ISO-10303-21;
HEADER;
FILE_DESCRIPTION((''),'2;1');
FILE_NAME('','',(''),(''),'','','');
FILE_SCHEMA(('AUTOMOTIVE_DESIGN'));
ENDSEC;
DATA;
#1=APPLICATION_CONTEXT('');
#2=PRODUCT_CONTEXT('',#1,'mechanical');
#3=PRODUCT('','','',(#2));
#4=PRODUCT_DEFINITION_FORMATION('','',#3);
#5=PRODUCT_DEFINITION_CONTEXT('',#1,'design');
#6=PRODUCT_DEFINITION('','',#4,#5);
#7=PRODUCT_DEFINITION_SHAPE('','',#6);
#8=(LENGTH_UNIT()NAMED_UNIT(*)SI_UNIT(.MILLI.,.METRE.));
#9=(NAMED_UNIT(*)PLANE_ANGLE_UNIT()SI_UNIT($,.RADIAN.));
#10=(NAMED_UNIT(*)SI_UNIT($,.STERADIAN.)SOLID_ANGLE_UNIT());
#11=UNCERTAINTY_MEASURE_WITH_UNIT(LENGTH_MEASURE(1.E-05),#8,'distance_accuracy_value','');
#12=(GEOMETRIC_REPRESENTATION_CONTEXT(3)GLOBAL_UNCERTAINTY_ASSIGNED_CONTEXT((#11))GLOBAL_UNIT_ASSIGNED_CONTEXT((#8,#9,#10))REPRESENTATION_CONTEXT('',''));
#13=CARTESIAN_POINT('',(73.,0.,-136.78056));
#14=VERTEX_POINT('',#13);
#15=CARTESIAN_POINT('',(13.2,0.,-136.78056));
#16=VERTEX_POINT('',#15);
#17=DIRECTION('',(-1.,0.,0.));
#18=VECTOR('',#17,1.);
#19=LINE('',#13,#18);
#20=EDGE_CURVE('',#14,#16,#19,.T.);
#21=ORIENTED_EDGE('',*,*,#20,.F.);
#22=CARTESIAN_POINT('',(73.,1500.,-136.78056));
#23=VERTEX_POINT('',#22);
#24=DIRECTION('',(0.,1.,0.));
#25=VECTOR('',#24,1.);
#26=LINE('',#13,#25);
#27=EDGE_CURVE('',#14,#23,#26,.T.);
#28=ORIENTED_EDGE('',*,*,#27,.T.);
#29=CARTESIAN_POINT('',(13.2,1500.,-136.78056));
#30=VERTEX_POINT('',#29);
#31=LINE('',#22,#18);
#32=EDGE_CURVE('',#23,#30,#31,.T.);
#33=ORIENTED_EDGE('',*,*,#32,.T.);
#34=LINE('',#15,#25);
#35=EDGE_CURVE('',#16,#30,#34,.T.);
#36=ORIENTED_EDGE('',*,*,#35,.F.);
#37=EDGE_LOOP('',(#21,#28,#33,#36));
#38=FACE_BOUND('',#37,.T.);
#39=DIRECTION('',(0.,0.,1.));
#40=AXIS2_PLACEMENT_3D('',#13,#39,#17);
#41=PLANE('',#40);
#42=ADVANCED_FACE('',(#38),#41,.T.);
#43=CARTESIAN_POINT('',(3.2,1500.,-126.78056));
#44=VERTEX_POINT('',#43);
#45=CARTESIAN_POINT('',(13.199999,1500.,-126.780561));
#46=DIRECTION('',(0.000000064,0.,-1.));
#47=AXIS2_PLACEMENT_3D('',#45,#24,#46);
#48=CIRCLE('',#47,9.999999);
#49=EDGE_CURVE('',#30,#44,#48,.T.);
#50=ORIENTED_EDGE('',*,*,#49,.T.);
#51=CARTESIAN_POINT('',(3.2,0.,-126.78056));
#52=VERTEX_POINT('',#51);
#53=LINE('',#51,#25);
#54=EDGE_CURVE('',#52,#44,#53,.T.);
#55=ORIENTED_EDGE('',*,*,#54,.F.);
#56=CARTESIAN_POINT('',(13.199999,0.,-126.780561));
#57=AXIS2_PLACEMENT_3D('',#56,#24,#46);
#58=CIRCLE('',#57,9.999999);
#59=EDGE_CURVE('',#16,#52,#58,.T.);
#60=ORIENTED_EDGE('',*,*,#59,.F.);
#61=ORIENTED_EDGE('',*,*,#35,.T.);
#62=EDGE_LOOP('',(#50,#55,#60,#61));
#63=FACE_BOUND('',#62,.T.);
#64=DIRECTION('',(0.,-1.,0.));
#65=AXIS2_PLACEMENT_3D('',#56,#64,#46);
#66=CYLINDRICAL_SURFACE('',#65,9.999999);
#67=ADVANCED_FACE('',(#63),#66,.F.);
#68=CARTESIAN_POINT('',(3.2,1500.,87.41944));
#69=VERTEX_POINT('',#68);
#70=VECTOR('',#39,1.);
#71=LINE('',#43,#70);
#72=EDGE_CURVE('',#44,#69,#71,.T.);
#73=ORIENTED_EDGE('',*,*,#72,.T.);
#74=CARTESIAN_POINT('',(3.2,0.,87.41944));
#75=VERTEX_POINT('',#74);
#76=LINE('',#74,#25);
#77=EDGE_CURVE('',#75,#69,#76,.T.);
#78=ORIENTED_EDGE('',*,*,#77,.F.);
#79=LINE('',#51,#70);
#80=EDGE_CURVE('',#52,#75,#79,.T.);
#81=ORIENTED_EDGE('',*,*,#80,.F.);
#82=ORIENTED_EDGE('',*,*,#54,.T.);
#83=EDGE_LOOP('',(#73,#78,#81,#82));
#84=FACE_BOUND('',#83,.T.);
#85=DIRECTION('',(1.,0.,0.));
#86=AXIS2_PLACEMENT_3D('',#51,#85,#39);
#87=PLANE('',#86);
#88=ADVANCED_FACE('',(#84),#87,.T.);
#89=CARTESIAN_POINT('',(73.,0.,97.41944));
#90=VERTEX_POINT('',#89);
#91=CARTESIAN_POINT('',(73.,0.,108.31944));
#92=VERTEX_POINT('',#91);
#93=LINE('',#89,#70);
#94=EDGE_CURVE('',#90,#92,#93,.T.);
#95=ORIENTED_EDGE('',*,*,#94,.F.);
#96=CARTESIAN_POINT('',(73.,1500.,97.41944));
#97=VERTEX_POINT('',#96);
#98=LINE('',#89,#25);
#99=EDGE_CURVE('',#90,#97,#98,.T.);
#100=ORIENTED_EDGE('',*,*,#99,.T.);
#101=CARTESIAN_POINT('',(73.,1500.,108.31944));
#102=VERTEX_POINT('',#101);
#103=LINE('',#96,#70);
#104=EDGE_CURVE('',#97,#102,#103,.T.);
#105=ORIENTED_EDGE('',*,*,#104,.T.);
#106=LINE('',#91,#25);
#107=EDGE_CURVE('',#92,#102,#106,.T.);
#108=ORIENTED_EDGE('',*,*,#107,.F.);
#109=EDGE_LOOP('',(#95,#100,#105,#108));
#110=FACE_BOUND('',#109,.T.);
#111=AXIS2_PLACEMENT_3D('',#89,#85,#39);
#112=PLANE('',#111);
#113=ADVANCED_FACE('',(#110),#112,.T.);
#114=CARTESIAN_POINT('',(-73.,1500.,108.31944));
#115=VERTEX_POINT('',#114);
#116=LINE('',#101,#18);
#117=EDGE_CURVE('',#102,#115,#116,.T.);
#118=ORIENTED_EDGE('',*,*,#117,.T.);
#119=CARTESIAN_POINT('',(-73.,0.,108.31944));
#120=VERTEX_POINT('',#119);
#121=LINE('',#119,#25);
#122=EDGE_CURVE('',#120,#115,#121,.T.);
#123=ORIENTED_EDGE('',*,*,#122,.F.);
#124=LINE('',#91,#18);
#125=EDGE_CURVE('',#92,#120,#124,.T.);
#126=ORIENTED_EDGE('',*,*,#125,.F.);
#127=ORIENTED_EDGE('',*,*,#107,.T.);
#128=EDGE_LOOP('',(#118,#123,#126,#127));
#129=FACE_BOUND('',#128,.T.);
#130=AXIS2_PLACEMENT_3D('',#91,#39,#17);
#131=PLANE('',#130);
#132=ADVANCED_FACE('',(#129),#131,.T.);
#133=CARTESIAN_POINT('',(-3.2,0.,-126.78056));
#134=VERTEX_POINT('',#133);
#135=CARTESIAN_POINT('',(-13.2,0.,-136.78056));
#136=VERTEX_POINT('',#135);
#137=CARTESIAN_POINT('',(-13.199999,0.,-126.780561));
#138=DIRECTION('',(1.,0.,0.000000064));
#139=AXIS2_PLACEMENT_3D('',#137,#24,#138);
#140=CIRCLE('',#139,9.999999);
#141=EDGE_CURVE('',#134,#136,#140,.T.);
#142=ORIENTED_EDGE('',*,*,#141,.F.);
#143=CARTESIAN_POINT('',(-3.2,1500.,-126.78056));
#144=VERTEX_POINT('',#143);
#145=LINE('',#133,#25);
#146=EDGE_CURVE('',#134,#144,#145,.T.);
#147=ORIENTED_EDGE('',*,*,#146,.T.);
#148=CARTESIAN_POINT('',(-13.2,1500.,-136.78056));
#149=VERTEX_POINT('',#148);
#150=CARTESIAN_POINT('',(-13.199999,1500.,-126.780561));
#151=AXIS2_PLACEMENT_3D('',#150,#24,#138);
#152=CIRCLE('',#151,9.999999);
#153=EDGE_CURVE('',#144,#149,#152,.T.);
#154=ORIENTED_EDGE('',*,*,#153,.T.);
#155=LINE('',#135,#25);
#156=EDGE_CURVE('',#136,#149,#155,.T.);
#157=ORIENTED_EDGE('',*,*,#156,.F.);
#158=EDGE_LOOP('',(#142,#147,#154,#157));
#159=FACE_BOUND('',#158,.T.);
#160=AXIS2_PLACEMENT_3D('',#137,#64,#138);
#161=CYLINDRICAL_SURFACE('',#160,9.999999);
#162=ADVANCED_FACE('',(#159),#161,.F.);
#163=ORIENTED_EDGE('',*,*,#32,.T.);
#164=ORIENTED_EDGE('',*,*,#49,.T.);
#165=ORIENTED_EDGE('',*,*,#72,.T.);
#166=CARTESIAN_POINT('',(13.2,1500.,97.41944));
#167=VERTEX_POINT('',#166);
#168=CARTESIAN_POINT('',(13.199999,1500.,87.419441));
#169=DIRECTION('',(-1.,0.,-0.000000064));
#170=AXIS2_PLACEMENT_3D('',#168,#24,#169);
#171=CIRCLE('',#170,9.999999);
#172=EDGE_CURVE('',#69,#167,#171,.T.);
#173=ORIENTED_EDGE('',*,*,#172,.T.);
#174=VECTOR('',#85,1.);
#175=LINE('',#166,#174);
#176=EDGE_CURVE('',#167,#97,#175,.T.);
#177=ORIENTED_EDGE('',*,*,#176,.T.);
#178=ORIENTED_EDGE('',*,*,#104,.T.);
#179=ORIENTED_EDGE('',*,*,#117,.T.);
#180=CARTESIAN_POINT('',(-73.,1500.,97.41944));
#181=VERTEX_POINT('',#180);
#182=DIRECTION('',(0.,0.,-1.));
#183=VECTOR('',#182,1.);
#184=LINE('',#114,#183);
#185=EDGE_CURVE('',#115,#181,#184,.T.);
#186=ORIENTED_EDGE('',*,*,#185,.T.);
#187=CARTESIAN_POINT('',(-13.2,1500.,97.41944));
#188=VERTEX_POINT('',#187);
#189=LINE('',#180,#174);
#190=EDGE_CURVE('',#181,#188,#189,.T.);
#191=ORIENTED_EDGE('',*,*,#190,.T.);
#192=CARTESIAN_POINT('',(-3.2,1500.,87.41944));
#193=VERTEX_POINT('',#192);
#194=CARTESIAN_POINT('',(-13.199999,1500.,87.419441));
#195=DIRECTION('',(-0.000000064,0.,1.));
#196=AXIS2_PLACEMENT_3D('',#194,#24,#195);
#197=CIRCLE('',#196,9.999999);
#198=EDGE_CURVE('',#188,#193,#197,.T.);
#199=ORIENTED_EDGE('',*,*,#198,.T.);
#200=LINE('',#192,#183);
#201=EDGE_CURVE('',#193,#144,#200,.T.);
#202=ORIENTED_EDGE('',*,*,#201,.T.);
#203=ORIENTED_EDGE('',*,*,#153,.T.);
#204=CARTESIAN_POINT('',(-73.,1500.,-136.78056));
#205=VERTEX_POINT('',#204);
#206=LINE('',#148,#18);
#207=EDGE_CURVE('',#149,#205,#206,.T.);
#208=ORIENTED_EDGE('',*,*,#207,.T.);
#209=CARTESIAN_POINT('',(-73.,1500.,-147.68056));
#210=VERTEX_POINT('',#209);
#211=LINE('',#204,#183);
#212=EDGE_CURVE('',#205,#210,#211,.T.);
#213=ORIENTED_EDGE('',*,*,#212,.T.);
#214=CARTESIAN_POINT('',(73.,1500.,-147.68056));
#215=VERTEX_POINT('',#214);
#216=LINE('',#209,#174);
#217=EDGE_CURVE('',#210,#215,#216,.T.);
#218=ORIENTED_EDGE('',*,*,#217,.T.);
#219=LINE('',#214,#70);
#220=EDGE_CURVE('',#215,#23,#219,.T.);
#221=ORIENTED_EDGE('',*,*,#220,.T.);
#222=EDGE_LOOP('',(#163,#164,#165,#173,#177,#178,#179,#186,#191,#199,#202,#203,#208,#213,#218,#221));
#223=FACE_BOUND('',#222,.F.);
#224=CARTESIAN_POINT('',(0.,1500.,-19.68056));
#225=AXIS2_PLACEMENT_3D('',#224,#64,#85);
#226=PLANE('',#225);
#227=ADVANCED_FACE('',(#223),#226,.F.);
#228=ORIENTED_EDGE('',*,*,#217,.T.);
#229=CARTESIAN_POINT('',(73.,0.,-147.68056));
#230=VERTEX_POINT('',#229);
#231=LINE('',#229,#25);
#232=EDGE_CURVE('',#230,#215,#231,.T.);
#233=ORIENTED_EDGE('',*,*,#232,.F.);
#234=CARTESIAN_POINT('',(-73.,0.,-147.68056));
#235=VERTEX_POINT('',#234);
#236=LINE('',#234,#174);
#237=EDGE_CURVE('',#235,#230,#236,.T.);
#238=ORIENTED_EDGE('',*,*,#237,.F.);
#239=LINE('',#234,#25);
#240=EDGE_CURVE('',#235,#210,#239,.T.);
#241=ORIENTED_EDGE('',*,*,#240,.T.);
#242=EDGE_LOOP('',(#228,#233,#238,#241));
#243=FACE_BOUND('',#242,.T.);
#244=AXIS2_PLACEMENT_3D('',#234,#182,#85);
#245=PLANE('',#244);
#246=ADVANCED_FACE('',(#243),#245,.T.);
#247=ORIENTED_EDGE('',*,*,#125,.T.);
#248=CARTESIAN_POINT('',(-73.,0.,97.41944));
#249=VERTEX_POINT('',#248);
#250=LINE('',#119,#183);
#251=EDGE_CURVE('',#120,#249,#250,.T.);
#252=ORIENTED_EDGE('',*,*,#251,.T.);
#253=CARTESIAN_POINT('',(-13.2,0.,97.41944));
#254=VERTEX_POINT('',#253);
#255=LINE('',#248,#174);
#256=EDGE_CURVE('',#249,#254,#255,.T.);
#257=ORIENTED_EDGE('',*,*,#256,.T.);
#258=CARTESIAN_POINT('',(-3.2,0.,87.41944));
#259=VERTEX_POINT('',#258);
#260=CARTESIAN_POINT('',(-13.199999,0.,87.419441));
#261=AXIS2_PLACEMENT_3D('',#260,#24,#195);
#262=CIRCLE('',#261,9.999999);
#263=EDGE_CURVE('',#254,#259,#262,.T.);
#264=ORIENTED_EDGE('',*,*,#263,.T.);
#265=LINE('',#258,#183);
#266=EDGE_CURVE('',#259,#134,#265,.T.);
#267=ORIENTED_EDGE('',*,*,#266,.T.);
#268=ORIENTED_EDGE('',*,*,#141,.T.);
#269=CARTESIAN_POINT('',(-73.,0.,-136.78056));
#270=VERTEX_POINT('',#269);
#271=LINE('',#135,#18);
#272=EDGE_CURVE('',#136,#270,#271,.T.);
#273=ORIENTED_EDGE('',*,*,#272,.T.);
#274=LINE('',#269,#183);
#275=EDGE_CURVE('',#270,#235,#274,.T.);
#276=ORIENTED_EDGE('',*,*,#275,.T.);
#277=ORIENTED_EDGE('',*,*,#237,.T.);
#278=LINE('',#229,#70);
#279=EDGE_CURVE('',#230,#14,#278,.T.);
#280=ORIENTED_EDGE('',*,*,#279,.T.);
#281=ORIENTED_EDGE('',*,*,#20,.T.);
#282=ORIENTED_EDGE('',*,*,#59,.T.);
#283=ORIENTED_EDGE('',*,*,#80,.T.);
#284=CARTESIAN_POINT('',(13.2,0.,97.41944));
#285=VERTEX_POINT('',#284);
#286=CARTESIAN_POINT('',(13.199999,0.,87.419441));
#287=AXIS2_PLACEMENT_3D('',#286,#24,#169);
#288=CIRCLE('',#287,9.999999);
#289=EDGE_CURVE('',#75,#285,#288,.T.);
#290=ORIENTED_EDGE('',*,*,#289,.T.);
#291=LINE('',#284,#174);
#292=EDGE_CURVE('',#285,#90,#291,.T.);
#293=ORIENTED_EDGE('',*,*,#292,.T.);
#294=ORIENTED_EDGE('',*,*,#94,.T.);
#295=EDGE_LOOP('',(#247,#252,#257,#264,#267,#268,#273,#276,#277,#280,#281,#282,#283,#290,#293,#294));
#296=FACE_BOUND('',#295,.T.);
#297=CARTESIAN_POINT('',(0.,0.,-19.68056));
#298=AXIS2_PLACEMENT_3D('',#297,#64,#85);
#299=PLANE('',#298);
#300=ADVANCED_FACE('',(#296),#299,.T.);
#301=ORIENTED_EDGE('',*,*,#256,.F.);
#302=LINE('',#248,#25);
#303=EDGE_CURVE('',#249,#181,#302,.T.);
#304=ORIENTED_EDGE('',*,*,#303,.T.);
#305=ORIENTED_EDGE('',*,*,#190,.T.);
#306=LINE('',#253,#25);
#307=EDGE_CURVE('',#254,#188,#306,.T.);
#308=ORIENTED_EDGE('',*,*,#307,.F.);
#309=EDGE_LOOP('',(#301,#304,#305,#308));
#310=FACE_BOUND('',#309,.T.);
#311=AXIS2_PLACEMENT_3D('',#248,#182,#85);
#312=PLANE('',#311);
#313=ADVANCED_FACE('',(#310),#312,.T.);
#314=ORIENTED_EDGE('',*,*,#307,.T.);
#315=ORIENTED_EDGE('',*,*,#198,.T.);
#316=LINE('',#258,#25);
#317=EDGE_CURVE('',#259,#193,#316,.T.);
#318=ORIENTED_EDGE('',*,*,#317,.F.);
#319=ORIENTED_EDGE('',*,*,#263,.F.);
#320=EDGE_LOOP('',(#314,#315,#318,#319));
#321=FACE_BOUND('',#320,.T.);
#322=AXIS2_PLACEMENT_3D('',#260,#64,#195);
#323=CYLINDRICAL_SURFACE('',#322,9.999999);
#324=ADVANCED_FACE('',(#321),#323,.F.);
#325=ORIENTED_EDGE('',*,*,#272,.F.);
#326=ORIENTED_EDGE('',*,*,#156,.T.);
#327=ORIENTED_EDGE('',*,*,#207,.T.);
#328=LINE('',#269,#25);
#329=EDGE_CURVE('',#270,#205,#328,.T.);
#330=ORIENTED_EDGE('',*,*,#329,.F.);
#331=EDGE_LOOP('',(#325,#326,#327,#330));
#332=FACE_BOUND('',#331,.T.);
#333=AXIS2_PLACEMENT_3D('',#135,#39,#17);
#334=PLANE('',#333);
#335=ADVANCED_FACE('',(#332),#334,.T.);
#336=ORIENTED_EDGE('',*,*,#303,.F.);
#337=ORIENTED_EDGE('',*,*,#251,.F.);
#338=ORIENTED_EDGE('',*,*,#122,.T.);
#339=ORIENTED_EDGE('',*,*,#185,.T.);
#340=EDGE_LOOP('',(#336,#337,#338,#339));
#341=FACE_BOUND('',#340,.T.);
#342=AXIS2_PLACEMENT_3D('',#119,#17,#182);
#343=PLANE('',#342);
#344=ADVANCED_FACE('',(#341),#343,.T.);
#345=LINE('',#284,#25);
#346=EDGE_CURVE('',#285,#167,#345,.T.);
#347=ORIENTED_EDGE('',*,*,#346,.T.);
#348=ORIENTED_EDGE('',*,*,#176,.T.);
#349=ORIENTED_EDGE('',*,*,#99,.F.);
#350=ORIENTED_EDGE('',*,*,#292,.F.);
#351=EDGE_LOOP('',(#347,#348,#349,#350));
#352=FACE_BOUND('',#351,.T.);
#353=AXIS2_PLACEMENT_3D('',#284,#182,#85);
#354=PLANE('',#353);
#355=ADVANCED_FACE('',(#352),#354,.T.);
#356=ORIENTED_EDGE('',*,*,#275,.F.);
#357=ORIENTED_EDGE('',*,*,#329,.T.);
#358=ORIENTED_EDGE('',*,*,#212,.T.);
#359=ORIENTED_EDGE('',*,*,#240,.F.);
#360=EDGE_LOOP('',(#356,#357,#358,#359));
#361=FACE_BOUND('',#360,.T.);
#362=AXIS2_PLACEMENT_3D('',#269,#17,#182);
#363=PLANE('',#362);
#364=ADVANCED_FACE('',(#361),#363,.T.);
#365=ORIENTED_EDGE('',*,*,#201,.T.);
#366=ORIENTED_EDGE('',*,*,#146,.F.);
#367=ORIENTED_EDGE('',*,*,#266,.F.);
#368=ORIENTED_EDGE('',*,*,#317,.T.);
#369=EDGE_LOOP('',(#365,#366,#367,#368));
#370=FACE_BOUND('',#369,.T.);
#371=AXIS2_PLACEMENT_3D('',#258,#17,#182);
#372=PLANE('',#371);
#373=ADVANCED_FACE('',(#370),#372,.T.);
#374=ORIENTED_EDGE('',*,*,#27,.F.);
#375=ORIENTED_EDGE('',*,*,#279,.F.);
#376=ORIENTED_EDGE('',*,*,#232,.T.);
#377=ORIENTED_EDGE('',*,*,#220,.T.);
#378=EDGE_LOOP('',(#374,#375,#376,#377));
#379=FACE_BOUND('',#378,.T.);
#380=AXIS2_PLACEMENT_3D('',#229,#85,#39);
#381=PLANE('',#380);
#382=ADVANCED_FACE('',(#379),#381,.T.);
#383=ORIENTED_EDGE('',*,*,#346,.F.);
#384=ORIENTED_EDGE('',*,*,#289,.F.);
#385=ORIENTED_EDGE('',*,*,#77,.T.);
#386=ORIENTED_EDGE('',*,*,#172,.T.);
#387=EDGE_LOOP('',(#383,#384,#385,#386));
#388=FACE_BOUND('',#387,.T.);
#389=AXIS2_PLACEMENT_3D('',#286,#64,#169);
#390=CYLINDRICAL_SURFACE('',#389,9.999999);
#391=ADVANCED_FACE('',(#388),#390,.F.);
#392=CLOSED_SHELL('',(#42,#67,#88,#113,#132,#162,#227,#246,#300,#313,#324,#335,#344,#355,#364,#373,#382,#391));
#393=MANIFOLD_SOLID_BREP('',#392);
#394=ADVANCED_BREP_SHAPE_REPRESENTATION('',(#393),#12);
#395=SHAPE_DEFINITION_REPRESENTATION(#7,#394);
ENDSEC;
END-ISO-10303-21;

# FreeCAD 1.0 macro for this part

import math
import FreeCAD as App
import Part
import Sketcher

V = App.Vector

doc = App.newDocument("Part")
body = doc.addObject("PartDesign::Body", "Body")

sketch1 = body.newObject("Sketcher::SketchObject", "Sketch")
sketch1.AttachmentSupport = (doc.getObject("XZ_Plane"), [""])
sketch1.MapMode = "FlatFace"
sketch1.addGeometry([
    Part.LineSegment(V(73, 108, 0), V(-73, 108, 0)),
    Part.LineSegment(V(-73, 108, 0), V(-73, 97, 0)),
    Part.LineSegment(V(-73, 97, 0), V(-13, 97, 0)),
    Part.ArcOfCircle(Part.Circle(V(-13, 87, 0), V(0, 0, 1), 10), math.radians(0), math.radians(90)),
    Part.LineSegment(V(-3, 87, 0), V(-3, -127, 0)),
    Part.ArcOfCircle(Part.Circle(V(-13, -127, 0), V(0, 0, 1), 10), math.radians(-90), math.radians(0)),
    Part.LineSegment(V(-13, -137, 0), V(-73, -137, 0)),
    Part.LineSegment(V(-73, -137, 0), V(-73, -148, 0)),
    Part.LineSegment(V(-73, -148, 0), V(73, -148, 0)),
    Part.LineSegment(V(73, -148, 0), V(73, -137, 0)),
    Part.LineSegment(V(73, -137, 0), V(13, -137, 0)),
    Part.ArcOfCircle(Part.Circle(V(13, -127, 0), V(0, 0, 1), 10), math.radians(180), math.radians(270)),
    Part.LineSegment(V(3, -127, 0), V(3, 87, 0)),
    Part.ArcOfCircle(Part.Circle(V(13, 87, 0), V(0, 0, 1), 10), math.radians(90), math.radians(180)),
    Part.LineSegment(V(13, 97, 0), V(73, 97, 0)),
    Part.LineSegment(V(73, 97, 0), V(73, 108, 0)),
], False)
sketch1.addConstraint([
    Sketcher.Constraint("Coincident", 0, 2, 1, 1),
    Sketcher.Constraint("Coincident", 1, 2, 2, 1),
    Sketcher.Constraint("Tangent", 2, 2, 3, 2),
    Sketcher.Constraint("Tangent", 3, 1, 4, 1),
    Sketcher.Constraint("Tangent", 4, 2, 5, 2),
    Sketcher.Constraint("Tangent", 5, 1, 6, 1),
    Sketcher.Constraint("Coincident", 6, 2, 7, 1),
    Sketcher.Constraint("Coincident", 7, 2, 8, 1),
    Sketcher.Constraint("Coincident", 8, 2, 9, 1),
    Sketcher.Constraint("Coincident", 9, 2, 10, 1),
    Sketcher.Constraint("Tangent", 10, 2, 11, 2),
    Sketcher.Constraint("Tangent", 11, 1, 12, 1),
    Sketcher.Constraint("Tangent", 12, 2, 13, 2),
    Sketcher.Constraint("Tangent", 13, 1, 14, 1),
    Sketcher.Constraint("Coincident", 14, 2, 15, 1),
    Sketcher.Constraint("Coincident", 15, 2, 0, 1),
    Sketcher.Constraint("Horizontal", 0),
    Sketcher.Constraint("Vertical", 1),
    Sketcher.Constraint("Horizontal", 2),
    Sketcher.Constraint("Vertical", 4),
    Sketcher.Constraint("Horizontal", 6),
    Sketcher.Constraint("Vertical", 7),
    Sketcher.Constraint("Horizontal", 8),
    Sketcher.Constraint("Vertical", 9),
    Sketcher.Constraint("Horizontal", 10),
    Sketcher.Constraint("Vertical", 12),
    Sketcher.Constraint("Horizontal", 14),
    Sketcher.Constraint("Vertical", 15),
    Sketcher.Constraint("Equal", 3, 5),
    Sketcher.Constraint("Equal", 5, 11),
    Sketcher.Constraint("Equal", 11, 13),
    Sketcher.Constraint("Symmetric", 5, 3, 11, 3, -2),
    Sketcher.Constraint("Symmetric", 1, 2, 14, 2, -2),
    Sketcher.Constraint("Vertical", 1, 2, 6, 2),
    Sketcher.Constraint("Vertical", 9, 2, 14, 2),
    Sketcher.Constraint("Equal", 1, 7),
    Sketcher.Constraint("Radius", 3, 9.999999),
    Sketcher.Constraint("DistanceX", 0, 2, 0, 1, 146.0),
    Sketcher.Constraint("DistanceX", 2, 1, 2, 2, 59.8),
    Sketcher.Constraint("DistanceY", 1, 2, 1, 1, 10.9),
    Sketcher.Constraint("DistanceY", 4, 2, 4, 1, 214.2),
    Sketcher.Constraint("DistanceY", -1, 1, 3, 3, 87.419441),
])
pad1 = body.newObject("PartDesign::Pad", "Pad")
pad1.Profile = sketch1
pad1.Length = 1500
pad1.Reversed = True

doc.recompute()
